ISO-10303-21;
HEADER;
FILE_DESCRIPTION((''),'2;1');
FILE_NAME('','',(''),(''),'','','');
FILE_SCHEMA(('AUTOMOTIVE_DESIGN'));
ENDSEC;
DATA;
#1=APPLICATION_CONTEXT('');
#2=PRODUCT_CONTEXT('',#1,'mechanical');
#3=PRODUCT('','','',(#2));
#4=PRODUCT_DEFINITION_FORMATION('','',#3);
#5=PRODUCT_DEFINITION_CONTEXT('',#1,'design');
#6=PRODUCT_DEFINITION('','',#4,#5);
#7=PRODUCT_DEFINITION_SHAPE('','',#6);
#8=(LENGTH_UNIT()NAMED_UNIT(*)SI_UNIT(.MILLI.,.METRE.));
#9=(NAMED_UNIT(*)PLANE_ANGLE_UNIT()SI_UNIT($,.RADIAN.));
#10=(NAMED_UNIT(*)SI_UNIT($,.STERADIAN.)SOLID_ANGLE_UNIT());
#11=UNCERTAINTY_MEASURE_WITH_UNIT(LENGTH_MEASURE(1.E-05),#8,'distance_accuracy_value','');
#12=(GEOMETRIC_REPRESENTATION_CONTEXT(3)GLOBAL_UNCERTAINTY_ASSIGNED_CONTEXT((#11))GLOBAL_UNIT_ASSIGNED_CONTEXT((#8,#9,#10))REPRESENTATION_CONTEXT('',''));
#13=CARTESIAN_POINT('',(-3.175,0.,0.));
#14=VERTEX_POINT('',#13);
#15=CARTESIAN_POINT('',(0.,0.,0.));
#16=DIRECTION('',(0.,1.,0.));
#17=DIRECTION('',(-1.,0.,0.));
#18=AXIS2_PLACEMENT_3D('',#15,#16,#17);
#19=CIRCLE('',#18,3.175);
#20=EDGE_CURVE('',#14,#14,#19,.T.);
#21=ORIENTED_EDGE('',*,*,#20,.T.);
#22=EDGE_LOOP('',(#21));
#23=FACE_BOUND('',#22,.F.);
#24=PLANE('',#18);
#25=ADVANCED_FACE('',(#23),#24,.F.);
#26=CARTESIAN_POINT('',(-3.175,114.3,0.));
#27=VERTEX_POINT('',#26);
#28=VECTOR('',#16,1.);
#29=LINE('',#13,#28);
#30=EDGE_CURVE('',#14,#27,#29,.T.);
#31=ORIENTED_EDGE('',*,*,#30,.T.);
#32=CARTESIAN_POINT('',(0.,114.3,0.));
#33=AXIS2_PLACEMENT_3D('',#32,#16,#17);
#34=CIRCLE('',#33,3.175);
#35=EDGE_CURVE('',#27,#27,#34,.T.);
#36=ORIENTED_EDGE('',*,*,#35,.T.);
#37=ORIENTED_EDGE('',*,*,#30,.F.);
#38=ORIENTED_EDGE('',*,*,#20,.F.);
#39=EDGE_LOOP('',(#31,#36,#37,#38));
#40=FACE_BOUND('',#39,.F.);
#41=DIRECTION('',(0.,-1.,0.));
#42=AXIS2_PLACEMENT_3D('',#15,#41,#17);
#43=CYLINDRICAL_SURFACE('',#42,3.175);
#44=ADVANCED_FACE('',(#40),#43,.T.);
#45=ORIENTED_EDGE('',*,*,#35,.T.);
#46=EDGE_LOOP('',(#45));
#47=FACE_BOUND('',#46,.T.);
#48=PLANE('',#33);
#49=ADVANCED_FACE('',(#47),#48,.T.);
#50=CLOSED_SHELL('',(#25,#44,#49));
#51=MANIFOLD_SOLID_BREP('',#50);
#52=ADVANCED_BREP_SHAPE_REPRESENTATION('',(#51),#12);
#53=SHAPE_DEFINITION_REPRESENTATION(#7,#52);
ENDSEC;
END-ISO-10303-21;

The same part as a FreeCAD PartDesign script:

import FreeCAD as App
import Part
import Sketcher

V = App.Vector
Q = App.Units.Quantity

doc = App.newDocument("Part")
body = doc.addObject("PartDesign::Body", "Body")

sketch1 = body.newObject("Sketcher::SketchObject", "Sketch")
sketch1.AttachmentSupport = (doc.getObject("XZ_Plane"), [""])
sketch1.MapMode = "FlatFace"
sketch1.addGeometry(Part.Circle(V(0, 0, 0), V(0, 0, 1), 3.2), False)
sketch1.addConstraint([
    Sketcher.Constraint("Coincident", 0, 3, -1, 1),
    Sketcher.Constraint("Diameter", 0, Q("0.25 in")),
])
pad1 = body.newObject("PartDesign::Pad", "Pad")
pad1.Profile = sketch1
pad1.Length = Q("4.5 in")
pad1.Reversed = True

doc.recompute()
